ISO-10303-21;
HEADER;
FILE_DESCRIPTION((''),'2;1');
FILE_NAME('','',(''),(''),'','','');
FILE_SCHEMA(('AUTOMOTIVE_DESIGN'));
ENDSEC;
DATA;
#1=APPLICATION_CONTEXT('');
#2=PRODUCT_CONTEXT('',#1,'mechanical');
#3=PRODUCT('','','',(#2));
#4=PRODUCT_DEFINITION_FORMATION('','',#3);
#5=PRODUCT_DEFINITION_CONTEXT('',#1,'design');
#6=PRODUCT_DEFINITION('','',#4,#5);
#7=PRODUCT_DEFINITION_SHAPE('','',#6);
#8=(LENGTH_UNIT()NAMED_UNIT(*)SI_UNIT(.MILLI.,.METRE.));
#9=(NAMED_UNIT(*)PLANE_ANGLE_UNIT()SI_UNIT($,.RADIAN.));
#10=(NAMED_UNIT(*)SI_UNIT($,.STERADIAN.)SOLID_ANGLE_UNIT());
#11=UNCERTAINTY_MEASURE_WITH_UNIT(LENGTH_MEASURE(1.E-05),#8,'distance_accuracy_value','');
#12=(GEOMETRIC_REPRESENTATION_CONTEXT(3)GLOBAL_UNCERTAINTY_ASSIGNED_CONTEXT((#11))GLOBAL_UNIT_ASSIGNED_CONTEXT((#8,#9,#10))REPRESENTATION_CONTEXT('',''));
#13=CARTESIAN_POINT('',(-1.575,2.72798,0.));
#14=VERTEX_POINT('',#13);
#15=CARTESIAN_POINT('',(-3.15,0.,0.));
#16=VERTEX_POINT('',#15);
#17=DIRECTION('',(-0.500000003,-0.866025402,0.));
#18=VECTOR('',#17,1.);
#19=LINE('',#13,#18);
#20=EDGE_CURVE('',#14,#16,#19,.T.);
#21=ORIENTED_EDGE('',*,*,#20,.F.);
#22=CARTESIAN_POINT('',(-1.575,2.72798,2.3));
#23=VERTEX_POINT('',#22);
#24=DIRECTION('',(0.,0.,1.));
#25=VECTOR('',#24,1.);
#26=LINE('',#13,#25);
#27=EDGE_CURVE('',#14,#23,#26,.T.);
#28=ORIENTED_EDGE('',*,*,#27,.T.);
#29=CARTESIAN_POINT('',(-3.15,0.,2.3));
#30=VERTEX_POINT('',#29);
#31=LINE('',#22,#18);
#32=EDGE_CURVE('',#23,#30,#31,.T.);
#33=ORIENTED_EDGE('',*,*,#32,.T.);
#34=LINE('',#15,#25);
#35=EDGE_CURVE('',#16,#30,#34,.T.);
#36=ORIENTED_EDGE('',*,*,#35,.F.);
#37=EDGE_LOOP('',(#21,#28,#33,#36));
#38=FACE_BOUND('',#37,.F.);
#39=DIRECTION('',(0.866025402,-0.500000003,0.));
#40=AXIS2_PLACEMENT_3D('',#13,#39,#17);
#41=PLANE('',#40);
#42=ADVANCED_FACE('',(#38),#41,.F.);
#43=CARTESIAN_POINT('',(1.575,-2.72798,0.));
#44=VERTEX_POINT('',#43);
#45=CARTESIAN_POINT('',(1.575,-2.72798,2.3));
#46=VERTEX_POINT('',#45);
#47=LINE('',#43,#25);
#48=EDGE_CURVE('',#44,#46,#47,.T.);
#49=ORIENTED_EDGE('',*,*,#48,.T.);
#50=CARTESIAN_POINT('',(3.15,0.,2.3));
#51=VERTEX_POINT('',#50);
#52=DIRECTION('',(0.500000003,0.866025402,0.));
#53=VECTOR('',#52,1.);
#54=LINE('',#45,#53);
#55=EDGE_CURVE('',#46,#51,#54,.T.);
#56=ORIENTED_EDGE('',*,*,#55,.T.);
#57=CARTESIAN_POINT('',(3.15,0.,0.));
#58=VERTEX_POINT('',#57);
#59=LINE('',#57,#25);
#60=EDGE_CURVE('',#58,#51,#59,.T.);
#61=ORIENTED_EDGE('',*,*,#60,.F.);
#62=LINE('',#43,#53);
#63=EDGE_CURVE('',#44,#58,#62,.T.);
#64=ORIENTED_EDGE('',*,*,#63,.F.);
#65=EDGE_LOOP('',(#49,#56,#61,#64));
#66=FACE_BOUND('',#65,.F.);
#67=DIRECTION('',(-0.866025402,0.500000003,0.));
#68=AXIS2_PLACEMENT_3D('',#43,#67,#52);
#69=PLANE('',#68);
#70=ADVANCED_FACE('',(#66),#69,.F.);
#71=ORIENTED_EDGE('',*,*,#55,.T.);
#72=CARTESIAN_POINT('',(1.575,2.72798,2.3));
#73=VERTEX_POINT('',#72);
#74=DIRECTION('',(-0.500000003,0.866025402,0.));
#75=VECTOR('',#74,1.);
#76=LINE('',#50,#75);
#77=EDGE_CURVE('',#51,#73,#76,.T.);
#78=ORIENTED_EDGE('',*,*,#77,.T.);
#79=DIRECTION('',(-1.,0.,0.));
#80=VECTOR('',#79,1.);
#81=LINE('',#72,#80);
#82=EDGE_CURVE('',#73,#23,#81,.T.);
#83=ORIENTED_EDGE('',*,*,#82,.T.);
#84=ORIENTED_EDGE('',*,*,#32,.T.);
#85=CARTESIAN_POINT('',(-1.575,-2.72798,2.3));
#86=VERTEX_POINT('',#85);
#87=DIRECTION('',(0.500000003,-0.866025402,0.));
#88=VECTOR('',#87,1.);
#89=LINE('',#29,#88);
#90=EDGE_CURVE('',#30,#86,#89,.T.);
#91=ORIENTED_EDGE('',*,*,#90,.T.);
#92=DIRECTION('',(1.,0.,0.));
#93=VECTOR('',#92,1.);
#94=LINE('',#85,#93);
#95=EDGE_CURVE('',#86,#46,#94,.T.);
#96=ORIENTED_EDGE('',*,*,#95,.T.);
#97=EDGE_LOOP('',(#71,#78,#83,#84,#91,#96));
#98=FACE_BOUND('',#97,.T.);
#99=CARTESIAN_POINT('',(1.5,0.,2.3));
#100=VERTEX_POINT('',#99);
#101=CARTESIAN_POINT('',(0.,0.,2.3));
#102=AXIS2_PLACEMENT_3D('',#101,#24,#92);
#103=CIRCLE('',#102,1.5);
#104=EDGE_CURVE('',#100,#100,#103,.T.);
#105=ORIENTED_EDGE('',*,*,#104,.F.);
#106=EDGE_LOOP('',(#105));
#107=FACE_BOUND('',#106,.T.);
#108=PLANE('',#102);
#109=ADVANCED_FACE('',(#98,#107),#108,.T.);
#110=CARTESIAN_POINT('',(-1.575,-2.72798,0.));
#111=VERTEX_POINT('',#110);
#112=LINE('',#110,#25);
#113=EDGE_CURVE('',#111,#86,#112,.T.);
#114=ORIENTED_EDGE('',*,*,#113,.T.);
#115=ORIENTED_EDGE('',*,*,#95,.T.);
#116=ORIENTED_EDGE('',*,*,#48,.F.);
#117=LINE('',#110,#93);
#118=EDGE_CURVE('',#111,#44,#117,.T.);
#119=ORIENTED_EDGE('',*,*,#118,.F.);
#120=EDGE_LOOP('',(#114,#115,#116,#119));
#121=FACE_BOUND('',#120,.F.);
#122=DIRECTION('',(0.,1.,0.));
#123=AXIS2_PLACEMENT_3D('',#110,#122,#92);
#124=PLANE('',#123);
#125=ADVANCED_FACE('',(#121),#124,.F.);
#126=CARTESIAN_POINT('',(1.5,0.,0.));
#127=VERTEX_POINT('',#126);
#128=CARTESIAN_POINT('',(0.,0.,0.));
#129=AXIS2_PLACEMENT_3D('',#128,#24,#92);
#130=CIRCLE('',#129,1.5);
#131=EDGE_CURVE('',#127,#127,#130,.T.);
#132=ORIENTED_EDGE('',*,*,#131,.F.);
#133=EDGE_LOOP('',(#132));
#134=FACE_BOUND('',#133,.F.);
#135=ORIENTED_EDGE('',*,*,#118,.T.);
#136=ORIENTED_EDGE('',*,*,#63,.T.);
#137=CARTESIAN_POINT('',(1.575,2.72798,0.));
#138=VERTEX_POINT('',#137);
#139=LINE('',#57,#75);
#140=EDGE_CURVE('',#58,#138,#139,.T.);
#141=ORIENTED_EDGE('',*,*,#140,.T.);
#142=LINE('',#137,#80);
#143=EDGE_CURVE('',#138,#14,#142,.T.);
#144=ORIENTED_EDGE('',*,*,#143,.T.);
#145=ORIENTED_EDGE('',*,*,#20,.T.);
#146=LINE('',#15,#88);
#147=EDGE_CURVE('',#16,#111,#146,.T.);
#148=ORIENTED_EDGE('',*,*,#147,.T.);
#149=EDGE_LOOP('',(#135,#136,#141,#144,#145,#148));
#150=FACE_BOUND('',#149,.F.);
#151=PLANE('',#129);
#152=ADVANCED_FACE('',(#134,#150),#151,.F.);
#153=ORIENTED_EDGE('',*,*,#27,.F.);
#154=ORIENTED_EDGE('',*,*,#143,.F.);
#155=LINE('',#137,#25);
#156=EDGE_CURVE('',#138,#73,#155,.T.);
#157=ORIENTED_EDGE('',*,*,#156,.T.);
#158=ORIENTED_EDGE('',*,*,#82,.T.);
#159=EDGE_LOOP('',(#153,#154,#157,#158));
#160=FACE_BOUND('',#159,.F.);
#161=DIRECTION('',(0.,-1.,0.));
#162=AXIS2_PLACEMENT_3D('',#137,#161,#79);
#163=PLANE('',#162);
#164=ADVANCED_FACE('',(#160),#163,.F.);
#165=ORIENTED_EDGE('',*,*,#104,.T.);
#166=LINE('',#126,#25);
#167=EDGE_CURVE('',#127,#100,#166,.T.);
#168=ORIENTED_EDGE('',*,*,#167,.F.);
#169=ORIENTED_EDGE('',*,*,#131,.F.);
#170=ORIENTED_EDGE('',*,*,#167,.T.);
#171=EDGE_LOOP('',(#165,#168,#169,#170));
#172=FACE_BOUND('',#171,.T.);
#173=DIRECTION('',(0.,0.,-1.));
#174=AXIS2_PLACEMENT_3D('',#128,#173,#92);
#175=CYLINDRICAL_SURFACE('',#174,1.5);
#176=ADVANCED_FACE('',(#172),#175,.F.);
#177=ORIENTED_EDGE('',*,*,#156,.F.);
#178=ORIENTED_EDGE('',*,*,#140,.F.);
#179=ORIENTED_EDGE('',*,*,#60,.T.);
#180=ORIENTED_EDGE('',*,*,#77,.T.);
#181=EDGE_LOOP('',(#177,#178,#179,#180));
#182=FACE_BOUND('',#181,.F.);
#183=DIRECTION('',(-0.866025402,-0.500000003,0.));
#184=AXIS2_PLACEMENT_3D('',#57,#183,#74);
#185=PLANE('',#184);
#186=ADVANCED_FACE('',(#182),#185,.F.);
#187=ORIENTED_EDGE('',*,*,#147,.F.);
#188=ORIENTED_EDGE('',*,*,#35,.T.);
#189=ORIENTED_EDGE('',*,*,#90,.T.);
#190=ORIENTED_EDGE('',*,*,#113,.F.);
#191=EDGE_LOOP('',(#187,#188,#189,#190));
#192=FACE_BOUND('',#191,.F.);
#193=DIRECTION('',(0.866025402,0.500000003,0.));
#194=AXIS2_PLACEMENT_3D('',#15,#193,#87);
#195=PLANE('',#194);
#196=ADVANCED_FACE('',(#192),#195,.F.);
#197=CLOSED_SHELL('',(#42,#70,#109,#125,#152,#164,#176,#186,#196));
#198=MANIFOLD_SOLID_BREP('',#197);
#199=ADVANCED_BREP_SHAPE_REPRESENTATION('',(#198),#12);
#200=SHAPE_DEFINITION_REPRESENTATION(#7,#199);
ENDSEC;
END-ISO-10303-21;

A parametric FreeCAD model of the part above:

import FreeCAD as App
import Part
import Sketcher
from FreeCAD import Vector
Q = App.Units.Quantity

doc = App.newDocument("Part")
body = doc.addObject("PartDesign::Body", "Body")

sketch1 = body.newObject("Sketcher::SketchObject", "Sketch")
sketch1.AttachmentSupport = (doc.getObject("XY_Plane"), [""])
sketch1.MapMode = "FlatFace"
sketch1.addGeometry([
    Part.LineSegment(Vector(1.6, -2.7, 0), Vector(3.1, 0, 0)),
    Part.LineSegment(Vector(3.1, 0, 0), Vector(1.6, 2.7, 0)),
    Part.LineSegment(Vector(1.6, 2.7, 0), Vector(-1.6, 2.7, 0)),
    Part.LineSegment(Vector(-1.6, 2.7, 0), Vector(-3.1, 0, 0)),
    Part.LineSegment(Vector(-3.1, 0, 0), Vector(-1.6, -2.7, 0)),
    Part.LineSegment(Vector(-1.6, -2.7, 0), Vector(1.6, -2.7, 0)),
    Part.Circle(Vector(0, 0, 0), Vector(0, 0, 1), 1.5),
], False)
sketch1.addConstraint([
    Sketcher.Constraint("Coincident", 0, 2, 1, 1),
    Sketcher.Constraint("Coincident", 1, 2, 2, 1),
    Sketcher.Constraint("Coincident", 2, 2, 3, 1),
    Sketcher.Constraint("Coincident", 3, 2, 4, 1),
    Sketcher.Constraint("Coincident", 4, 2, 5, 1),
    Sketcher.Constraint("Coincident", 5, 2, 0, 1),
    Sketcher.Constraint("Horizontal", 2),
    Sketcher.Constraint("Horizontal", 5),
    Sketcher.Constraint("Coincident", 6, 3, -1, 1),
    Sketcher.Constraint("Symmetric", 0, 2, 3, 2, -1, 1),
    Sketcher.Constraint("Symmetric", 1, 2, 4, 2, -1, 1),
    Sketcher.Constraint("PointOnObject", 0, 2, -1),
    Sketcher.Constraint("Parallel", 0, 3),
    Sketcher.Constraint("Vertical", 2, 2, 4, 2),
    Sketcher.Constraint("Diameter", 6, 3.0),
    Sketcher.Constraint("Angle", 0, Q("60 deg")),
    Sketcher.Constraint("DistanceX", 2, 2, 2, 1, 3.15),
    Sketcher.Constraint("DistanceX", 3, 2, 0, 2, 6.3),
])
pad1 = body.newObject("PartDesign::Pad", "Pad")
pad1.Profile = sketch1
pad1.Length = 2.3

doc.recompute()
